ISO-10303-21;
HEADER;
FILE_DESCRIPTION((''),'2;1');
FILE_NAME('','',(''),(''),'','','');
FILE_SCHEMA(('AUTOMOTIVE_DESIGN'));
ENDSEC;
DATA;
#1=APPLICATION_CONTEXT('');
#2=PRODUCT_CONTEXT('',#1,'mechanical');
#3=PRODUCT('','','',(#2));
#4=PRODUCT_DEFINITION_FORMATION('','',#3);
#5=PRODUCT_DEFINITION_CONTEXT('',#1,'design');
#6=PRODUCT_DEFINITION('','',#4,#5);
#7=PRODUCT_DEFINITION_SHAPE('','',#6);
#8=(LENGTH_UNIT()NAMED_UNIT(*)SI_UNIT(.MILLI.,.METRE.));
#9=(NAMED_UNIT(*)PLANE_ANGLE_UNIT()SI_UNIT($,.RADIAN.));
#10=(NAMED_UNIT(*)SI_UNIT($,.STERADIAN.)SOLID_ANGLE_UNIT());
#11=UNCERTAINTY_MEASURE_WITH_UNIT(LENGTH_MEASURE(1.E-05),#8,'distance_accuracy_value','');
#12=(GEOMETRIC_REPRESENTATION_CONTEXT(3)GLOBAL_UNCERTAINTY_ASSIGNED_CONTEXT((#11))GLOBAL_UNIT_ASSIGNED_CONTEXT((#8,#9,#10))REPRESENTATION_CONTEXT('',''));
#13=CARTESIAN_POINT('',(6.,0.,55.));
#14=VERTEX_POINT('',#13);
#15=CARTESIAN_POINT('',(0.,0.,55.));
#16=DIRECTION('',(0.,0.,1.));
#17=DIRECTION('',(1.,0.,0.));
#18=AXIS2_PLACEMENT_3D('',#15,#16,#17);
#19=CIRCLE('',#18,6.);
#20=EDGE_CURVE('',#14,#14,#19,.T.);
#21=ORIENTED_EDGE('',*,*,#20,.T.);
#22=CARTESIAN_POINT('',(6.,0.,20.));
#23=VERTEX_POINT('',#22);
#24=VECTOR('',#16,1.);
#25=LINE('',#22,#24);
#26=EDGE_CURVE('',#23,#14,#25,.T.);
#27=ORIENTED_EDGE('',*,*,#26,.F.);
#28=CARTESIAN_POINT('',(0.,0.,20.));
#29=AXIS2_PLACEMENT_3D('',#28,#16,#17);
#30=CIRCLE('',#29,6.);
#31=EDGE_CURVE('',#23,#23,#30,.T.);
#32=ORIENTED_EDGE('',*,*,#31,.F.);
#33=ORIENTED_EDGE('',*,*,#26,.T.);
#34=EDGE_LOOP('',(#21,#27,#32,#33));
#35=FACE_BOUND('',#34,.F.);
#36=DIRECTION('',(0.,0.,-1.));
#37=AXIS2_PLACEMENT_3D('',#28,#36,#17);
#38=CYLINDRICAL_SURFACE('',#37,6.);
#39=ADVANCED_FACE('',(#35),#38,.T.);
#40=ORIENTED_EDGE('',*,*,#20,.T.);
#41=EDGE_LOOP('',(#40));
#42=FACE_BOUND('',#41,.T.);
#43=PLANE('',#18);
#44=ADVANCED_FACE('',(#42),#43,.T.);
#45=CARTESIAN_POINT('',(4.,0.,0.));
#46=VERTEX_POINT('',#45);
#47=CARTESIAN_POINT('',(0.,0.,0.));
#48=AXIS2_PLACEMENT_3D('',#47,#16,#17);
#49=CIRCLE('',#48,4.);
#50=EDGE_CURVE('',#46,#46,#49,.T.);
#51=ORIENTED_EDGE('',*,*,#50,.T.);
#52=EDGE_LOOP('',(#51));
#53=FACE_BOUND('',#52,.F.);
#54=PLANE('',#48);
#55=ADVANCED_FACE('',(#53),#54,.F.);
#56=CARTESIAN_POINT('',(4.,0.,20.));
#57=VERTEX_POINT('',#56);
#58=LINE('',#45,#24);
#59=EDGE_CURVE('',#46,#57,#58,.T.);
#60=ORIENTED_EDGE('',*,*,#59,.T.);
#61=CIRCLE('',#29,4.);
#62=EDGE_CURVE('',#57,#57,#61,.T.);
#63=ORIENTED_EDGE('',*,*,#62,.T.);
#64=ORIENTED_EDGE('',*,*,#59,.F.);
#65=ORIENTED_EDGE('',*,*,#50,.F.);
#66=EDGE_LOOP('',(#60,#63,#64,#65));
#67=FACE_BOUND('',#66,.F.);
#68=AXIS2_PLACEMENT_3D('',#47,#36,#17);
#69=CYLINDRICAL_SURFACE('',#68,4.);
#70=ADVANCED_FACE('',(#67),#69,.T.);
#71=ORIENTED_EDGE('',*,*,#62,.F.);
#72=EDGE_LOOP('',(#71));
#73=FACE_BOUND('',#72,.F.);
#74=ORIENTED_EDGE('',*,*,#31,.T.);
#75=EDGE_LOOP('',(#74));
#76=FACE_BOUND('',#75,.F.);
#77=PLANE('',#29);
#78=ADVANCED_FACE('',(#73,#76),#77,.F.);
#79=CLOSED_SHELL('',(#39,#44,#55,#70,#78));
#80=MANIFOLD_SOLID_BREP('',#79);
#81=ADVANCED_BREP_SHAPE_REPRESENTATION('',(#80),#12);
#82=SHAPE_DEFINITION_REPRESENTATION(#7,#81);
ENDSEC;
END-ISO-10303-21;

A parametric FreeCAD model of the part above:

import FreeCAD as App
import Part
import Sketcher
from FreeCAD import Vector

doc = App.newDocument("Part")
body = doc.addObject("PartDesign::Body", "Body")

# Sketch on XY plane
sketch1 = body.newObject("Sketcher::SketchObject", "Sketch")
sketch1.AttachmentSupport = (doc.getObject("XY_Plane"), [""])
sketch1.MapMode = "FlatFace"
sketch1.addGeometry(Part.Circle(Vector(0, 0, 0), Vector(0, 0, 1), 4), False)
sketch1.addConstraint([
    Sketcher.Constraint("Coincident", 0, 3, -1, 1),
    Sketcher.Constraint("Diameter", 0, 8.0),
])
pad1 = body.newObject("PartDesign::Pad", "Pad")
pad1.Profile = sketch1
pad1.Length = 20

# Sketch on XY plane
sketch2 = body.newObject("Sketcher::SketchObject", "Sketch001")
sketch2.AttachmentSupport = (doc.getObject("XY_Plane"), [""])
sketch2.MapMode = "FlatFace"
sketch2.AttachmentOffset = App.Placement(Vector(0, 0, 20), App.Rotation())
sketch2.addGeometry(Part.Circle(Vector(0, 0, 0), Vector(0, 0, 1), 6), False)
sketch2.addConstraint([
    Sketcher.Constraint("Coincident", 0, 3, -1, 1),
    Sketcher.Constraint("Diameter", 0, 12.0),
])
pad2 = body.newObject("PartDesign::Pad", "Pad001")
pad2.Profile = sketch2
pad2.Length = 35

doc.recompute()
